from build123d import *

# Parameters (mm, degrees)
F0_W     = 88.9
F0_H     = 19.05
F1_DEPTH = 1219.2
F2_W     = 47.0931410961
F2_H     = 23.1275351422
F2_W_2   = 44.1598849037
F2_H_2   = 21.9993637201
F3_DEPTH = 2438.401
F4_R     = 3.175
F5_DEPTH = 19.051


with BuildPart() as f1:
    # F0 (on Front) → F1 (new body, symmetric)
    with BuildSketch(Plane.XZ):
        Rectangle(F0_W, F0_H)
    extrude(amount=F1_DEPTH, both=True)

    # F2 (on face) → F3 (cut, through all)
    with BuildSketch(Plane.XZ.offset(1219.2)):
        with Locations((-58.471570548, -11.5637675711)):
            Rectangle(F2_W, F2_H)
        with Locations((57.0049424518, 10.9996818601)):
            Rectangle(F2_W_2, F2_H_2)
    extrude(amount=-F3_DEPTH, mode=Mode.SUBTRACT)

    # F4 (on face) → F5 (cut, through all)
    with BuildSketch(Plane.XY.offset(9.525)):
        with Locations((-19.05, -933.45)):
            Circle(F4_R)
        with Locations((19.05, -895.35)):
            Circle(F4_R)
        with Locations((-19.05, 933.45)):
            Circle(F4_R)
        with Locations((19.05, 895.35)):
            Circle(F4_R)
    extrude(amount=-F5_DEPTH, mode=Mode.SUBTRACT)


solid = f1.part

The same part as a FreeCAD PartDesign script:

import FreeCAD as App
import Part
import Sketcher
Q = App.Units.Quantity

doc = App.newDocument("Part")
params = doc.addObject("Spreadsheet::Sheet", "Params")
for row, (alias, value) in enumerate([
    ("sketch1_width", "3.5 in"),
    ("sketch1_height", "0.75 in"),
    ("pad1_length", "96 in"),
    ("sketch3_diameter", "0.25 in"),
], start=1):
    params.set(f"A{row}", alias)
    params.set(f"B{row}", "=" + value)
    params.setAlias(f"B{row}", alias)

body = doc.addObject("PartDesign::Body", "Body")

# Sketch on XZ plane
sketch1 = body.newObject("Sketcher::SketchObject", "Sketch")
sketch1.AttachmentSupport = (doc.getObject("XZ_Plane"), [""])
sketch1.MapMode = "FlatFace"
sketch1.addGeometry([
    Part.LineSegment(App.Vector(-44, 10, 0), App.Vector(-44, -10, 0)),
    Part.LineSegment(App.Vector(-44, -10, 0), App.Vector(44, -10, 0)),
    Part.LineSegment(App.Vector(44, -10, 0), App.Vector(44, 10, 0)),
    Part.LineSegment(App.Vector(44, 10, 0), App.Vector(-44, 10, 0)),
], False)
sketch1.addConstraint([
    Sketcher.Constraint("Coincident", 0, 2, 1, 1),
    Sketcher.Constraint("Coincident", 1, 2, 2, 1),
    Sketcher.Constraint("Coincident", 2, 2, 3, 1),
    Sketcher.Constraint("Coincident", 3, 2, 0, 1),
    Sketcher.Constraint("Vertical", 0),
    Sketcher.Constraint("Horizontal", 1),
    Sketcher.Constraint("Vertical", 2),
    Sketcher.Constraint("Horizontal", 3),
    Sketcher.Constraint("Symmetric", 0, 2, 2, 2, -1, 1),
    Sketcher.Constraint("DistanceX", 1, 1, 1, 2, Q("3.5 in")),
    Sketcher.Constraint("DistanceY", 0, 2, 0, 1, Q("0.75 in")),
])
sketch1.setExpression("Constraints[9]", "Params.sketch1_width")
sketch1.setExpression("Constraints[10]", "Params.sketch1_height")
pad1 = body.newObject("PartDesign::Pad", "Pad")
pad1.Profile = sketch1
pad1.setExpression("Length", "Params.pad1_length")
pad1.Midplane = True

# Sketch on XZ plane
sketch2 = body.newObject("Sketcher::SketchObject", "Sketch001")
sketch2.AttachmentSupport = (doc.getObject("XZ_Plane"), [""])
sketch2.MapMode = "FlatFace"
sketch2.AttachmentOffset = App.Placement(App.Vector(0, 0, 48 * 25.4), App.Rotation())
sketch2.addGeometry([
    Part.LineSegment(App.Vector(-82, 0, 0), App.Vector(-82, -23, 0)),  # 0
    Part.LineSegment(App.Vector(-82, -23, 0), App.Vector(-35, -23, 0)),  # 1
    Part.LineSegment(App.Vector(-35, -23, 0), App.Vector(-35, 0, 0)),  # 2
    Part.LineSegment(App.Vector(-35, 0, 0), App.Vector(-82, 0, 0)),  # 3
    Part.LineSegment(App.Vector(35, 22, 0), App.Vector(35, 0, 0)),  # 4
    Part.LineSegment(App.Vector(35, 0, 0), App.Vector(79, 0, 0)),  # 5
    Part.LineSegment(App.Vector(79, 0, 0), App.Vector(79, 22, 0)),  # 6
    Part.LineSegment(App.Vector(79, 22, 0), App.Vector(35, 22, 0)),  # 7
], False)
sketch2.addConstraint([
    Sketcher.Constraint("Coincident", 0, 2, 1, 1),
    Sketcher.Constraint("Coincident", 1, 2, 2, 1),
    Sketcher.Constraint("Coincident", 2, 2, 3, 1),
    Sketcher.Constraint("Coincident", 3, 2, 0, 1),
    Sketcher.Constraint("Coincident", 4, 2, 5, 1),
    Sketcher.Constraint("Coincident", 5, 2, 6, 1),
    Sketcher.Constraint("Coincident", 6, 2, 7, 1),
    Sketcher.Constraint("Coincident", 7, 2, 4, 1),
    Sketcher.Constraint("Vertical", 0),
    Sketcher.Constraint("Horizontal", 1),
    Sketcher.Constraint("Vertical", 2),
    Sketcher.Constraint("Horizontal", 3),
    Sketcher.Constraint("Vertical", 4),
    Sketcher.Constraint("Horizontal", 5),
    Sketcher.Constraint("Vertical", 6),
    Sketcher.Constraint("Horizontal", 7),
    Sketcher.Constraint("Symmetric", 2, 2, 4, 2, -1, 1),
    Sketcher.Constraint("PointOnObject", 2, 2, -1),
    Sketcher.Constraint("DistanceX", 2, 2, 4, 2, Q("2.75 in")),
    Sketcher.Constraint("DistanceX", 1, 1, 1, 2, Q("47.093141 mm")),
    Sketcher.Constraint("DistanceY", 1, 2, 6, 2, Q("45.126899 mm")),
    Sketcher.Constraint("DistanceX", 5, 1, 5, 2, Q("44.159885 mm")),
    Sketcher.Constraint("DistanceY", 0, 2, 0, 1, Q("23.127535 mm")),
])
pocket1 = body.newObject("PartDesign::Pocket", "Pocket")
pocket1.Profile = sketch2
pocket1.Type = "ThroughAll"

# Sketch on XY plane
sketch3 = body.newObject("Sketcher::SketchObject", "Sketch002")
sketch3.AttachmentSupport = (doc.getObject("XY_Plane"), [""])
sketch3.MapMode = "FlatFace"
sketch3.AttachmentOffset = App.Placement(App.Vector(0, 0, 0.375 * 25.4), App.Rotation())
sketch3.addGeometry([
    Part.Circle(App.Vector(-19.1, -933.5, 0), App.Vector(0, 0, 1), 3.2),
    Part.Circle(App.Vector(19.1, -895.4, 0), App.Vector(0, 0, 1), 3.2),
    Part.Circle(App.Vector(-19.1, 933.5, 0), App.Vector(0, 0, 1), 3.2),
    Part.Circle(App.Vector(19.1, 895.4, 0), App.Vector(0, 0, 1), 3.2),
], False)
sketch3.addConstraint([
    Sketcher.Constraint("Equal", 0, 1),
    Sketcher.Constraint("Equal", 1, 2),
    Sketcher.Constraint("Equal", 2, 3),
    Sketcher.Constraint("Symmetric", 0, 3, 2, 3, -1),
    Sketcher.Constraint("Symmetric", 1, 3, 3, 3, -1),
    Sketcher.Constraint("Diameter", 0, Q("0.25 in")),
    Sketcher.Constraint("DistanceY", 1, 3, 2, 3, Q("72 in")),
    Sketcher.Constraint("DistanceX", 0, 3, 1, 3, Q("1.5 in")),
    Sketcher.Constraint("DistanceY", 0, 3, 1, 3, Q("1.5 in")),
    Sketcher.Constraint("DistanceX", 0, 3, -1, 1, Q("0.75 in")),
])
sketch3.setExpression("Constraints[5]", "Params.sketch3_diameter")
pocket2 = body.newObject("PartDesign::Pocket", "Pocket001")
pocket2.Profile = sketch3
pocket2.Type = "ThroughAll"

doc.recompute()
